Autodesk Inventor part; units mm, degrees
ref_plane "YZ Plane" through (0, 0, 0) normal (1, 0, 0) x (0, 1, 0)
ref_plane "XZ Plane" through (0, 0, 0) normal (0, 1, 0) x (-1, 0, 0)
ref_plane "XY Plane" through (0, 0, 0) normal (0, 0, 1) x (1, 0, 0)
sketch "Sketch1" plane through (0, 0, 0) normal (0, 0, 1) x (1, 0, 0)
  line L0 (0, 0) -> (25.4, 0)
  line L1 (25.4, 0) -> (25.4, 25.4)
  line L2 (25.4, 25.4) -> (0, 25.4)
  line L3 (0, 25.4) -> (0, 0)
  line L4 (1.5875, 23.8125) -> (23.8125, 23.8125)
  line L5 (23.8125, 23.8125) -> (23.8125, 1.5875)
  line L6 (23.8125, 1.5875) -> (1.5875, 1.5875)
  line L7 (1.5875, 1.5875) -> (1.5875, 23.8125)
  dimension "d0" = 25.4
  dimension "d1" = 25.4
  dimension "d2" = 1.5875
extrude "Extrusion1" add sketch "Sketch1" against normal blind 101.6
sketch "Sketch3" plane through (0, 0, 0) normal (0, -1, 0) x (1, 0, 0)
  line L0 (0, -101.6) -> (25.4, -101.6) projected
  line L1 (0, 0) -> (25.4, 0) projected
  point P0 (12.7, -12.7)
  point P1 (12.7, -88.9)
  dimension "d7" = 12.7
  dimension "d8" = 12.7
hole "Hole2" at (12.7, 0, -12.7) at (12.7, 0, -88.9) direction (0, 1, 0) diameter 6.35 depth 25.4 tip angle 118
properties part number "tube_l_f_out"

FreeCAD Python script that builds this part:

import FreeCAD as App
import Part
import Sketcher
Q = App.Units.Quantity


def add_polygon(sketch, points):
    """Adds a closed chain of lines whose ends are joined by coincident constraints."""
    first, n = sketch.GeometryCount, len(points)
    for a, b in zip(points, points[1:] + points[:1]):
        sketch.addGeometry(Part.LineSegment(App.Vector(*a, 0), App.Vector(*b, 0)), False)
    for i in range(n):
        sketch.addConstraint(Sketcher.Constraint("Coincident", first + i, 2, first + (i + 1) % n, 1))

doc = App.newDocument("Part")
body = doc.addObject("PartDesign::Body", "Body")

# Sketch on XY plane
sketch1 = body.newObject("Sketcher::SketchObject", "Sketch")
sketch1.AttachmentSupport = (doc.getObject("XY_Plane"), [""])
sketch1.MapMode = "FlatFace"
add_polygon(sketch1, [(0, 25.4), (0, 0), (25.4, 0), (25.4, 25.4)])  # lines 0-3
add_polygon(sketch1, [(1.5875, 1.5875), (1.5875, 23.8125), (23.8125, 23.8125), (23.8125, 1.5875)])  # lines 4-7
sketch1.addConstraint([
    Sketcher.Constraint("Vertical", 0),
    Sketcher.Constraint("Horizontal", 1),
    Sketcher.Constraint("Vertical", 2),
    Sketcher.Constraint("Horizontal", 3),
    Sketcher.Constraint("Vertical", 4),
    Sketcher.Constraint("Horizontal", 5),
    Sketcher.Constraint("Vertical", 6),
    Sketcher.Constraint("Horizontal", 7),
    Sketcher.Constraint("Coincident", 0, 2, -1, 1),
    Sketcher.Constraint("Equal", 3, 0),
    Sketcher.Constraint("Equal", 7, 4),
    Sketcher.Constraint("DistanceX", 1, 1, 1, 2, Q("1 in")),
    Sketcher.Constraint("DistanceX", -1, 1, 4, 2, Q("0.0625 in")),
    Sketcher.Constraint("DistanceY", -1, 1, 6, 2, Q("0.0625 in")),
    Sketcher.Constraint("DistanceY", 4, 2, 3, 2, Q("0.0625 in")),
])
pad1 = body.newObject("PartDesign::Pad", "Pad")
pad1.Profile = sketch1
pad1.Length = Q("4 in")
pad1.Reversed = True

# Sketch on XZ plane
sketch2 = body.newObject("Sketcher::SketchObject", "Sketch001")
sketch2.AttachmentSupport = (doc.getObject("XZ_Plane"), [""])
sketch2.MapMode = "FlatFace"
sketch2.addGeometry([
    Part.Circle(App.Vector(12.7, -12.7, 0), App.Vector(0, 0, 1), 3.175),
    Part.Circle(App.Vector(12.7, -88.9, 0), App.Vector(0, 0, 1), 3.175),
], False)
sketch2.addConstraint([
    Sketcher.Constraint("Equal", 0, 1),
    Sketcher.Constraint("Vertical", 0, 3, 1, 3),
    Sketcher.Constraint("Diameter", 0, Q("0.25 in")),
    Sketcher.Constraint("DistanceY", 1, 3, 0, 3, Q("3 in")),
    Sketcher.Constraint("DistanceX", -1, 1, 0, 3, Q("0.5 in")),
    Sketcher.Constraint("DistanceY", 0, 3, -1, 1, Q("0.5 in")),
])
doc.recompute()
hole = body.newObject("PartDesign::Hole", "Hole")
hole.Profile = sketch2
hole.ThreadType = "None"
hole.Diameter = Q("0.25 in")
hole.DepthType = "Dimension"
hole.Depth = Q("1 in")
hole.DrillPoint = "Angled"
hole.DrillPointAngle = 118

doc.recompute()
